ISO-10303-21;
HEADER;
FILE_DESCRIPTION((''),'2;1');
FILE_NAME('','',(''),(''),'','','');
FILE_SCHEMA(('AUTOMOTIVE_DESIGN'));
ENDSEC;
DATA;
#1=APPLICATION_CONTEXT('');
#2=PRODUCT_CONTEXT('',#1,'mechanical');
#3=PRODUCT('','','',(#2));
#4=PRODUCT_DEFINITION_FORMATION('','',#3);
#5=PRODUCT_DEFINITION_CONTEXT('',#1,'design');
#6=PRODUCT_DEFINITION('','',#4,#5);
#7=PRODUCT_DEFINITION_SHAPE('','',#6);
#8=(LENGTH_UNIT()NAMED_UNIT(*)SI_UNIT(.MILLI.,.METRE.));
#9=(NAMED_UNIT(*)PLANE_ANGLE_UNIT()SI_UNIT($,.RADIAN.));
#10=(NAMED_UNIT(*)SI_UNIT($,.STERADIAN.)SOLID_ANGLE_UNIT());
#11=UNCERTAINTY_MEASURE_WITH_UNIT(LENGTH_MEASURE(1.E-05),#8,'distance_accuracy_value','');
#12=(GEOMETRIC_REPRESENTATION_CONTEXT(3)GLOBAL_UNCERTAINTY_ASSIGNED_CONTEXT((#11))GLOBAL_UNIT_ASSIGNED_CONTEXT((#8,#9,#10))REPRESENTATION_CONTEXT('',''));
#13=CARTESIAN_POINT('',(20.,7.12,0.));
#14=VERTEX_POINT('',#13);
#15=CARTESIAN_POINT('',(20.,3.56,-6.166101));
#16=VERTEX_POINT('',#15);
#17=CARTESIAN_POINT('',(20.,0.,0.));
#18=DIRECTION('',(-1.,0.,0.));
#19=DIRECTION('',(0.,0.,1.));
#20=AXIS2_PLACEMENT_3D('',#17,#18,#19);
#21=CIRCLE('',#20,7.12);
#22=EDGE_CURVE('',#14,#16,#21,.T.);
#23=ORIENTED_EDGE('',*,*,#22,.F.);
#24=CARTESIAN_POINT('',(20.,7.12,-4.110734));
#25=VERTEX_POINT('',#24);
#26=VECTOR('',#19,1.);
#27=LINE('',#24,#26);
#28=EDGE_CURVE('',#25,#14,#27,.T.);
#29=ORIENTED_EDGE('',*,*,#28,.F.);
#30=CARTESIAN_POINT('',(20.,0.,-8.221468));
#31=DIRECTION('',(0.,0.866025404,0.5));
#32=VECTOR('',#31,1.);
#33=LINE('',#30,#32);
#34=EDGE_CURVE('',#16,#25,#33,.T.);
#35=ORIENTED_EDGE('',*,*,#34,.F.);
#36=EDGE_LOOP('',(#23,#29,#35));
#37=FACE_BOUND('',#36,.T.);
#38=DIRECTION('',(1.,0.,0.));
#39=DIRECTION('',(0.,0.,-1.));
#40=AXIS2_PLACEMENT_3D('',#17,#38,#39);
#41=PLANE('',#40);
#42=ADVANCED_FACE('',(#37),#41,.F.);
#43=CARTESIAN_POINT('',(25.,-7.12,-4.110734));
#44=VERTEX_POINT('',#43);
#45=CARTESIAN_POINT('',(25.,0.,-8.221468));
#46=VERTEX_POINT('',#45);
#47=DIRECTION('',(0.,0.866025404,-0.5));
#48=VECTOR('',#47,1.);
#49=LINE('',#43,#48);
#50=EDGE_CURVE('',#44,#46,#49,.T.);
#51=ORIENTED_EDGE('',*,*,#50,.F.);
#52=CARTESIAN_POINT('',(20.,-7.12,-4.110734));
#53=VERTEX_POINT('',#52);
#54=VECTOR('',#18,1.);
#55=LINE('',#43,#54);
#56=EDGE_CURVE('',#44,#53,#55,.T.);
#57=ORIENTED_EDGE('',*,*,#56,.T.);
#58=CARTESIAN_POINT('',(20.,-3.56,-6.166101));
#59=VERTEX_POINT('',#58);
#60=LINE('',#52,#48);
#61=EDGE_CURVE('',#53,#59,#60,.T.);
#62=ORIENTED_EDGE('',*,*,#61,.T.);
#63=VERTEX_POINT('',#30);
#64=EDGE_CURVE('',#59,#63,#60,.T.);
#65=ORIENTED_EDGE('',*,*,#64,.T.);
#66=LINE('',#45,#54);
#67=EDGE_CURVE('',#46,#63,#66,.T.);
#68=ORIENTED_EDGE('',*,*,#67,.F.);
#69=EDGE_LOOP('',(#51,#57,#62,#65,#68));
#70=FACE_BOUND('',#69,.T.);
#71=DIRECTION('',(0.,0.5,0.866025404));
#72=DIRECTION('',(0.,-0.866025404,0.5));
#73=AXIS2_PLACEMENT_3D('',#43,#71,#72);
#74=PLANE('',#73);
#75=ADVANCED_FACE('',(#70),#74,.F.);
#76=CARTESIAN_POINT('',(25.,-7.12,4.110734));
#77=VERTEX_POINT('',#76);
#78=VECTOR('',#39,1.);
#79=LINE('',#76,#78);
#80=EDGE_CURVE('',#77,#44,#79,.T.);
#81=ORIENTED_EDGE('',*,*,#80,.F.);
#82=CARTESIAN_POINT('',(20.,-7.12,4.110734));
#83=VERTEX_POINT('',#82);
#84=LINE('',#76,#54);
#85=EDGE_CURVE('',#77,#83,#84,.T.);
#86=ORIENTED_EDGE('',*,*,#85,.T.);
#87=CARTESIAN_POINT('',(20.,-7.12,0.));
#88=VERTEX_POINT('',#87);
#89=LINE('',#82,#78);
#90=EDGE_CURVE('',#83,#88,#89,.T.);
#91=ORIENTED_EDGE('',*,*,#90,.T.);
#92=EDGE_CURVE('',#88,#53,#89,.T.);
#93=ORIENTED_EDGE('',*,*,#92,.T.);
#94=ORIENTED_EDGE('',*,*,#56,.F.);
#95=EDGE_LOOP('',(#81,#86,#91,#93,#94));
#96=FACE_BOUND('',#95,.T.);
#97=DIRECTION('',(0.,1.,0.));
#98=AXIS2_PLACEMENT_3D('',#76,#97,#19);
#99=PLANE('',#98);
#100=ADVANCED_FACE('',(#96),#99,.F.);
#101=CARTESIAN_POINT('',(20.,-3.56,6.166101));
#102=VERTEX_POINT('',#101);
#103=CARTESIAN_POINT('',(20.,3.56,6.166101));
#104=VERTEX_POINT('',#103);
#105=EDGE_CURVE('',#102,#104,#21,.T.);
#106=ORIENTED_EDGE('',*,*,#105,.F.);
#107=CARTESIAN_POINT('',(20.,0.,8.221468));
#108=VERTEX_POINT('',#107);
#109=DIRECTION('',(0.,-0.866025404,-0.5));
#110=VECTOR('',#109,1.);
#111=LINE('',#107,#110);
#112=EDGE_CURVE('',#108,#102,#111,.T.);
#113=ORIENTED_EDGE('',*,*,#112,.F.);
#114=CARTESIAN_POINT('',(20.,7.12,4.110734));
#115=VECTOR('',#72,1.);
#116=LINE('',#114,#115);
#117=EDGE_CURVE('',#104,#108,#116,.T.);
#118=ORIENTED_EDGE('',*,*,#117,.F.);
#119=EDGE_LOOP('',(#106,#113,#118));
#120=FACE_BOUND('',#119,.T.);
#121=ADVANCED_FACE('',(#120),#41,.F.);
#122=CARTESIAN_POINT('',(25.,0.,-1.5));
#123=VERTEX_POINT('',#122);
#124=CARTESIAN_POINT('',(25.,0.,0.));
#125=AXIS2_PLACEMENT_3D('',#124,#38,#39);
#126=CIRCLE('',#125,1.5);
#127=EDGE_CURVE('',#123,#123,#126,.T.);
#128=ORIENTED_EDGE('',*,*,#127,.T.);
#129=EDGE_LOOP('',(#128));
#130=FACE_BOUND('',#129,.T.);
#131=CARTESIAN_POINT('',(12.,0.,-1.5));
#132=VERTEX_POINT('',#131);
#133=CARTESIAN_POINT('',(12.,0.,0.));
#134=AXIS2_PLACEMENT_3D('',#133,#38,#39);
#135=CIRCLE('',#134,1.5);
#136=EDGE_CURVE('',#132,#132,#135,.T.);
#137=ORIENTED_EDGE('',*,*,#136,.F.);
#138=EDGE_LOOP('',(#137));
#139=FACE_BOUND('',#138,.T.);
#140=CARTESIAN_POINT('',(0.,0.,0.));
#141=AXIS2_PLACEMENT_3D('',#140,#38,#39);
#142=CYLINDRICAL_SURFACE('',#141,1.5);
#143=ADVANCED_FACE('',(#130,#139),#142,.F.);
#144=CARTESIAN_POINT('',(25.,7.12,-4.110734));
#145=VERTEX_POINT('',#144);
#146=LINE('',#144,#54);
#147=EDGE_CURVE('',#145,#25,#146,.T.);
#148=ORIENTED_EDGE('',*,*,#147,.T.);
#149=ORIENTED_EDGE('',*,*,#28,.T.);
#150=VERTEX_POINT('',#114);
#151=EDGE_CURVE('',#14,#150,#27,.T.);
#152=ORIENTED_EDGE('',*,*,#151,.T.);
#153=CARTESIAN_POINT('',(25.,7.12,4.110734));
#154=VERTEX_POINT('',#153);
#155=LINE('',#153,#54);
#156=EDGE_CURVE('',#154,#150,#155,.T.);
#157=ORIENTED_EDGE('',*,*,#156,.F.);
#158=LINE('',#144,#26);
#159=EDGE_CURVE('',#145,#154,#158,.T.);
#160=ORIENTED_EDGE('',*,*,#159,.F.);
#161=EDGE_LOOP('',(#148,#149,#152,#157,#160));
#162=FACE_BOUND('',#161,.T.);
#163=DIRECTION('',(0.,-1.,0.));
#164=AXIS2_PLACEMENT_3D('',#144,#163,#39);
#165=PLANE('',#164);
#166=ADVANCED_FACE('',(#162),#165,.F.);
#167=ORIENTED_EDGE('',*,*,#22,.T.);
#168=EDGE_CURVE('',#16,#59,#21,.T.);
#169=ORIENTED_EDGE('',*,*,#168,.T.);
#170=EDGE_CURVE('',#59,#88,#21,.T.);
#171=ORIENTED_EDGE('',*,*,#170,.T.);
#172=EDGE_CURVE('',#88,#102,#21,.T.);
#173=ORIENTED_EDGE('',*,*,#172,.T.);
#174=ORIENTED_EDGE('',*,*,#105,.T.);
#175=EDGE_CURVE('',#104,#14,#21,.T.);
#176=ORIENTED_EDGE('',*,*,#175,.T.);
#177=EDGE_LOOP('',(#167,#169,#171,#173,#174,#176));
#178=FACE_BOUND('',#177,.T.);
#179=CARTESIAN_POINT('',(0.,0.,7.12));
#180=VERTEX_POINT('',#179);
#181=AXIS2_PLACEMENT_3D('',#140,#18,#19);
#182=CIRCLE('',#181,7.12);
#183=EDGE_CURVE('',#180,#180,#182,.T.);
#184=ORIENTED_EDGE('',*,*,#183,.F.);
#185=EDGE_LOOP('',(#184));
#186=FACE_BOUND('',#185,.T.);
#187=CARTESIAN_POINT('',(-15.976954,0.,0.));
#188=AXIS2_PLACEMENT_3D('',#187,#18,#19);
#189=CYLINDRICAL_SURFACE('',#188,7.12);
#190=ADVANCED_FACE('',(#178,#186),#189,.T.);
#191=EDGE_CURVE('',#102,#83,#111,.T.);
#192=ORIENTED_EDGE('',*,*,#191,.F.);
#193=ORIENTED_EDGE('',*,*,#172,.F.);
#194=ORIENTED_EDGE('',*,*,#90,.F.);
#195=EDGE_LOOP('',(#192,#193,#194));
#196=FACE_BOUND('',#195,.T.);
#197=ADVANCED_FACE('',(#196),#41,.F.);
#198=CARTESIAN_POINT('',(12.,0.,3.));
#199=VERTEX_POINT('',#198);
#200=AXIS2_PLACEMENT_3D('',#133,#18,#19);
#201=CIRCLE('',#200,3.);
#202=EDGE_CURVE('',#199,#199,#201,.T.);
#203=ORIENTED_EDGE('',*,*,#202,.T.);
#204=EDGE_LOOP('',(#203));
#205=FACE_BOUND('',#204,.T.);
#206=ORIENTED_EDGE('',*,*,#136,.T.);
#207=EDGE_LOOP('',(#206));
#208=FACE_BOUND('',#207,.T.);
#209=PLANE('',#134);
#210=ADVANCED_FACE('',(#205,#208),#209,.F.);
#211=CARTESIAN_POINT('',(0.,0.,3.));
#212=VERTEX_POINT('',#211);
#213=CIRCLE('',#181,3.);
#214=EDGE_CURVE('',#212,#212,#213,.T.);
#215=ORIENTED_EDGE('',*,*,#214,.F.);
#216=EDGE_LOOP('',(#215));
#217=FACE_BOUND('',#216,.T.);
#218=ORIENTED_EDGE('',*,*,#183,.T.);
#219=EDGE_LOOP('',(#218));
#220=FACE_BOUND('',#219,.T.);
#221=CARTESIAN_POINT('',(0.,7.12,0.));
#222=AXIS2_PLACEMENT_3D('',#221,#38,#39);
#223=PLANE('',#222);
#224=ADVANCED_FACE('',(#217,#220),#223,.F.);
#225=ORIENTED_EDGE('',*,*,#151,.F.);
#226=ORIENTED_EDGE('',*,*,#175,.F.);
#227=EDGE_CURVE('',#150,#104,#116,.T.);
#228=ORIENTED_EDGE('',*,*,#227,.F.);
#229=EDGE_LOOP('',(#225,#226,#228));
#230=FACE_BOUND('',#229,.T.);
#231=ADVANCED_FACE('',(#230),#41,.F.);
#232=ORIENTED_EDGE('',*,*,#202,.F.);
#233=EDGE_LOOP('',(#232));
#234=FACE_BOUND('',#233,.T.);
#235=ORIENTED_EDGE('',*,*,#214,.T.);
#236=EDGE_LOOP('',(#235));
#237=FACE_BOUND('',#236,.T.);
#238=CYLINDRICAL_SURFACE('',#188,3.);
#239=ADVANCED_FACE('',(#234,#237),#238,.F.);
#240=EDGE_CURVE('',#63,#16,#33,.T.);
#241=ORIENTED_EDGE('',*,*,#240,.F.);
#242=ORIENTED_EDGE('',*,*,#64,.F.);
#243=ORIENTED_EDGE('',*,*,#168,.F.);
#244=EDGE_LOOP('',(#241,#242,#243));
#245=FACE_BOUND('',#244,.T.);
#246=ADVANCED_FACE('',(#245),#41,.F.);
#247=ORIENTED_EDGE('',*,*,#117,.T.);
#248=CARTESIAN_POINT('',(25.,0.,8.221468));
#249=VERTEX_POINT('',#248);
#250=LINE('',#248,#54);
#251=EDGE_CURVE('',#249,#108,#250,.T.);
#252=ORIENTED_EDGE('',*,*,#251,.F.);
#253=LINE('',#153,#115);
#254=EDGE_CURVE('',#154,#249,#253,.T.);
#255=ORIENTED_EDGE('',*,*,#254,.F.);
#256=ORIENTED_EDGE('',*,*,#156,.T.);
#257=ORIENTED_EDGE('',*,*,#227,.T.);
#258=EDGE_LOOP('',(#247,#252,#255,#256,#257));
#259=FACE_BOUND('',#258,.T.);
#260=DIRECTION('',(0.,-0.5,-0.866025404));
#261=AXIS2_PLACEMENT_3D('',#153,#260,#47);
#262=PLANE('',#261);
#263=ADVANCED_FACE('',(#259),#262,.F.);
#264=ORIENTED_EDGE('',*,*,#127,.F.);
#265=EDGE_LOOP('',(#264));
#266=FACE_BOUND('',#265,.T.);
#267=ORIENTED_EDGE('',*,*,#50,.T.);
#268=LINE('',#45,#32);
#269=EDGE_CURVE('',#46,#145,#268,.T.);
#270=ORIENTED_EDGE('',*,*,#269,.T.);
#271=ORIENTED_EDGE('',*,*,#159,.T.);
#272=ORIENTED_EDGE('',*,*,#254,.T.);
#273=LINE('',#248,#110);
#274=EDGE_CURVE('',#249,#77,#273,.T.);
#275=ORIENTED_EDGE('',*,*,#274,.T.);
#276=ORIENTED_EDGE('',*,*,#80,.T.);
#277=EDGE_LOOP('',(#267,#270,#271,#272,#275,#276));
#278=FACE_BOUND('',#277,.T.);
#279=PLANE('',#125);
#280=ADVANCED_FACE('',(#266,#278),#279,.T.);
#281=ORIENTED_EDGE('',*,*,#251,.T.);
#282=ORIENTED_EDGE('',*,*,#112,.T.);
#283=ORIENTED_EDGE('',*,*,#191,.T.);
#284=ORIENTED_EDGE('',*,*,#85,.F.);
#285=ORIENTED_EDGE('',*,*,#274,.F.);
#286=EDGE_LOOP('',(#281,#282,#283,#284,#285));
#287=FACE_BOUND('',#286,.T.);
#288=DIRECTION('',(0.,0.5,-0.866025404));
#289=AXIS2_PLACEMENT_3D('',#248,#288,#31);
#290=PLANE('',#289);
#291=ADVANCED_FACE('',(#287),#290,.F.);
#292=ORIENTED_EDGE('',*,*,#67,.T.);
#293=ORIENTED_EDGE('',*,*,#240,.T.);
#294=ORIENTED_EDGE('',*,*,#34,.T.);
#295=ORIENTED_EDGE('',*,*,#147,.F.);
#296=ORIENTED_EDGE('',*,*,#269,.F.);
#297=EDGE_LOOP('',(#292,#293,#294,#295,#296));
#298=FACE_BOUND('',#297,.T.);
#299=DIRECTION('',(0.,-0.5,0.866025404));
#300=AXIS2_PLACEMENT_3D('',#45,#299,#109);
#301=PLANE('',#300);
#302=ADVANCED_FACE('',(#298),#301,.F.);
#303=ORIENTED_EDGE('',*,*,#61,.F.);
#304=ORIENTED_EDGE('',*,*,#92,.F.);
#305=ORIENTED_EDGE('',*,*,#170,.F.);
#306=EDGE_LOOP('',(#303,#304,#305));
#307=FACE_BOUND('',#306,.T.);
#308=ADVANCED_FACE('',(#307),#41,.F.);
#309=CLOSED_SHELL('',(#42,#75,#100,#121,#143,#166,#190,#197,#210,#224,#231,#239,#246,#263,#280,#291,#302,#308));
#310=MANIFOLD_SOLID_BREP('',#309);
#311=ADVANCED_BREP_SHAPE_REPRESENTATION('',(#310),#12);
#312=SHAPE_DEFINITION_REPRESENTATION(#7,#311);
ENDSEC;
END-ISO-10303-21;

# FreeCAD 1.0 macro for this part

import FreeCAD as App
import Part
import Sketcher
Q = App.Units.Quantity

doc = App.newDocument("Part")
body = doc.addObject("PartDesign::Body", "Body")

# Sketch on XY plane
sketch1 = body.newObject("Sketcher::SketchObject", "Sketch")
sketch1.AttachmentSupport = (doc.getObject("XY_Plane"), [""])
sketch1.MapMode = "FlatFace"
sketch1.addGeometry([
    Part.LineSegment(App.Vector(0, 7, 0), App.Vector(0, 0, 0)),
    Part.LineSegment(App.Vector(0, 0, 0), App.Vector(20, 0, 0)),
    Part.LineSegment(App.Vector(20, 0, 0), App.Vector(20, 7, 0)),
    Part.LineSegment(App.Vector(20, 7, 0), App.Vector(0, 7, 0)),
], False)
sketch1.addConstraint([
    Sketcher.Constraint("Coincident", 0, 2, 1, 1),
    Sketcher.Constraint("Coincident", 1, 2, 2, 1),
    Sketcher.Constraint("Coincident", 2, 2, 3, 1),
    Sketcher.Constraint("Coincident", 3, 2, 0, 1),
    Sketcher.Constraint("Vertical", 0),
    Sketcher.Constraint("Horizontal", 1),
    Sketcher.Constraint("Vertical", 2),
    Sketcher.Constraint("Horizontal", 3),
    Sketcher.Constraint("Coincident", 0, 2, -1, 1),
    Sketcher.Constraint("DistanceX", 1, 1, 1, 2, 20.0),
    Sketcher.Constraint("DistanceY", 0, 2, 0, 1, 7.12),
])
revolution = body.newObject("PartDesign::Revolution", "Revolution")
revolution.Profile = sketch1
revolution.ReferenceAxis = (sketch1, ["H_Axis"])
revolution.Angle = 360

# Sketch on XY plane
sketch2 = body.newObject("Sketcher::SketchObject", "Sketch001")
sketch2.AttachmentSupport = (doc.getObject("XY_Plane"), [""])
sketch2.MapMode = "FlatFace"
sketch2.addGeometry([
    Part.LineSegment(App.Vector(0, 3, 0), App.Vector(0, 0, 0)),
    Part.LineSegment(App.Vector(0, 0, 0), App.Vector(12, 0, 0)),
    Part.LineSegment(App.Vector(12, 0, 0), App.Vector(12, 3, 0)),
    Part.LineSegment(App.Vector(12, 3, 0), App.Vector(0, 3, 0)),
], False)
sketch2.addConstraint([
    Sketcher.Constraint("Coincident", 0, 2, 1, 1),
    Sketcher.Constraint("Coincident", 1, 2, 2, 1),
    Sketcher.Constraint("Coincident", 2, 2, 3, 1),
    Sketcher.Constraint("Coincident", 3, 2, 0, 1),
    Sketcher.Constraint("Vertical", 0),
    Sketcher.Constraint("Horizontal", 1),
    Sketcher.Constraint("Vertical", 2),
    Sketcher.Constraint("Horizontal", 3),
    Sketcher.Constraint("Coincident", 0, 2, -1, 1),
    Sketcher.Constraint("DistanceX", 1, 1, 1, 2, 12.0),
    Sketcher.Constraint("DistanceY", 0, 2, 0, 1, 3.0),
])
groove = body.newObject("PartDesign::Groove", "Groove")
groove.Profile = sketch2
groove.ReferenceAxis = (sketch2, ["H_Axis"])
groove.Angle = 360

# Sketch on YZ plane
sketch3 = body.newObject("Sketcher::SketchObject", "Sketch002")
sketch3.AttachmentSupport = (doc.getObject("YZ_Plane"), [""])
sketch3.MapMode = "FlatFace"
sketch3.AttachmentOffset = App.Placement(App.Vector(0, 0, 20), App.Rotation())
sketch3.addGeometry([
    Part.LineSegment(App.Vector(0, -8, 0), App.Vector(7, -4, 0)),  # 0
    Part.LineSegment(App.Vector(7, -4, 0), App.Vector(7, 4, 0)),  # 1
    Part.LineSegment(App.Vector(7, 4, 0), App.Vector(0, 8, 0)),  # 2
    Part.LineSegment(App.Vector(0, 8, 0), App.Vector(-7, 4, 0)),  # 3
    Part.LineSegment(App.Vector(-7, 4, 0), App.Vector(-7, -4, 0)),  # 4
    Part.LineSegment(App.Vector(-7, -4, 0), App.Vector(0, -8, 0)),  # 5
], False)
sketch3.addConstraint([
    Sketcher.Constraint("Coincident", 0, 2, 1, 1),
    Sketcher.Constraint("Coincident", 1, 2, 2, 1),
    Sketcher.Constraint("Coincident", 2, 2, 3, 1),
    Sketcher.Constraint("Coincident", 3, 2, 4, 1),
    Sketcher.Constraint("Coincident", 4, 2, 5, 1),
    Sketcher.Constraint("Coincident", 5, 2, 0, 1),
    Sketcher.Constraint("Vertical", 1),
    Sketcher.Constraint("Vertical", 4),
    Sketcher.Constraint("Symmetric", 0, 2, 3, 2, -1, 1),
    Sketcher.Constraint("Symmetric", 2, 2, 5, 2, -1, 1),
    Sketcher.Constraint("PointOnObject", 2, 2, -2),
    Sketcher.Constraint("Parallel", 2, 5),
    Sketcher.Constraint("Horizontal", 1, 2, 3, 2),
    Sketcher.Constraint("Angle", 0, Q("30 deg")),
    Sketcher.Constraint("DistanceX", -1, 1, 0, 2, 7.12),
    Sketcher.Constraint("DistanceY", 0, 2, 2, 2, 12.332202),
])
pad1 = body.newObject("PartDesign::Pad", "Pad")
pad1.Profile = sketch3
pad1.Length = 5

# Sketch on YZ plane
sketch4 = body.newObject("Sketcher::SketchObject", "Sketch003")
sketch4.AttachmentSupport = (doc.getObject("YZ_Plane"), [""])
sketch4.MapMode = "FlatFace"
sketch4.AttachmentOffset = App.Placement(App.Vector(0, 0, 25), App.Rotation())
sketch4.addGeometry(Part.Circle(App.Vector(0, 0, 0), App.Vector(0, 0, 1), 1.5), False)
sketch4.addConstraint([
    Sketcher.Constraint("Coincident", 0, 3, -1, 1),
    Sketcher.Constraint("Diameter", 0, 3.0),
])
pocket1 = body.newObject("PartDesign::Pocket", "Pocket")
pocket1.Profile = sketch4
pocket1.Type = "ThroughAll"
pocket1.Midplane = True

doc.recompute()
